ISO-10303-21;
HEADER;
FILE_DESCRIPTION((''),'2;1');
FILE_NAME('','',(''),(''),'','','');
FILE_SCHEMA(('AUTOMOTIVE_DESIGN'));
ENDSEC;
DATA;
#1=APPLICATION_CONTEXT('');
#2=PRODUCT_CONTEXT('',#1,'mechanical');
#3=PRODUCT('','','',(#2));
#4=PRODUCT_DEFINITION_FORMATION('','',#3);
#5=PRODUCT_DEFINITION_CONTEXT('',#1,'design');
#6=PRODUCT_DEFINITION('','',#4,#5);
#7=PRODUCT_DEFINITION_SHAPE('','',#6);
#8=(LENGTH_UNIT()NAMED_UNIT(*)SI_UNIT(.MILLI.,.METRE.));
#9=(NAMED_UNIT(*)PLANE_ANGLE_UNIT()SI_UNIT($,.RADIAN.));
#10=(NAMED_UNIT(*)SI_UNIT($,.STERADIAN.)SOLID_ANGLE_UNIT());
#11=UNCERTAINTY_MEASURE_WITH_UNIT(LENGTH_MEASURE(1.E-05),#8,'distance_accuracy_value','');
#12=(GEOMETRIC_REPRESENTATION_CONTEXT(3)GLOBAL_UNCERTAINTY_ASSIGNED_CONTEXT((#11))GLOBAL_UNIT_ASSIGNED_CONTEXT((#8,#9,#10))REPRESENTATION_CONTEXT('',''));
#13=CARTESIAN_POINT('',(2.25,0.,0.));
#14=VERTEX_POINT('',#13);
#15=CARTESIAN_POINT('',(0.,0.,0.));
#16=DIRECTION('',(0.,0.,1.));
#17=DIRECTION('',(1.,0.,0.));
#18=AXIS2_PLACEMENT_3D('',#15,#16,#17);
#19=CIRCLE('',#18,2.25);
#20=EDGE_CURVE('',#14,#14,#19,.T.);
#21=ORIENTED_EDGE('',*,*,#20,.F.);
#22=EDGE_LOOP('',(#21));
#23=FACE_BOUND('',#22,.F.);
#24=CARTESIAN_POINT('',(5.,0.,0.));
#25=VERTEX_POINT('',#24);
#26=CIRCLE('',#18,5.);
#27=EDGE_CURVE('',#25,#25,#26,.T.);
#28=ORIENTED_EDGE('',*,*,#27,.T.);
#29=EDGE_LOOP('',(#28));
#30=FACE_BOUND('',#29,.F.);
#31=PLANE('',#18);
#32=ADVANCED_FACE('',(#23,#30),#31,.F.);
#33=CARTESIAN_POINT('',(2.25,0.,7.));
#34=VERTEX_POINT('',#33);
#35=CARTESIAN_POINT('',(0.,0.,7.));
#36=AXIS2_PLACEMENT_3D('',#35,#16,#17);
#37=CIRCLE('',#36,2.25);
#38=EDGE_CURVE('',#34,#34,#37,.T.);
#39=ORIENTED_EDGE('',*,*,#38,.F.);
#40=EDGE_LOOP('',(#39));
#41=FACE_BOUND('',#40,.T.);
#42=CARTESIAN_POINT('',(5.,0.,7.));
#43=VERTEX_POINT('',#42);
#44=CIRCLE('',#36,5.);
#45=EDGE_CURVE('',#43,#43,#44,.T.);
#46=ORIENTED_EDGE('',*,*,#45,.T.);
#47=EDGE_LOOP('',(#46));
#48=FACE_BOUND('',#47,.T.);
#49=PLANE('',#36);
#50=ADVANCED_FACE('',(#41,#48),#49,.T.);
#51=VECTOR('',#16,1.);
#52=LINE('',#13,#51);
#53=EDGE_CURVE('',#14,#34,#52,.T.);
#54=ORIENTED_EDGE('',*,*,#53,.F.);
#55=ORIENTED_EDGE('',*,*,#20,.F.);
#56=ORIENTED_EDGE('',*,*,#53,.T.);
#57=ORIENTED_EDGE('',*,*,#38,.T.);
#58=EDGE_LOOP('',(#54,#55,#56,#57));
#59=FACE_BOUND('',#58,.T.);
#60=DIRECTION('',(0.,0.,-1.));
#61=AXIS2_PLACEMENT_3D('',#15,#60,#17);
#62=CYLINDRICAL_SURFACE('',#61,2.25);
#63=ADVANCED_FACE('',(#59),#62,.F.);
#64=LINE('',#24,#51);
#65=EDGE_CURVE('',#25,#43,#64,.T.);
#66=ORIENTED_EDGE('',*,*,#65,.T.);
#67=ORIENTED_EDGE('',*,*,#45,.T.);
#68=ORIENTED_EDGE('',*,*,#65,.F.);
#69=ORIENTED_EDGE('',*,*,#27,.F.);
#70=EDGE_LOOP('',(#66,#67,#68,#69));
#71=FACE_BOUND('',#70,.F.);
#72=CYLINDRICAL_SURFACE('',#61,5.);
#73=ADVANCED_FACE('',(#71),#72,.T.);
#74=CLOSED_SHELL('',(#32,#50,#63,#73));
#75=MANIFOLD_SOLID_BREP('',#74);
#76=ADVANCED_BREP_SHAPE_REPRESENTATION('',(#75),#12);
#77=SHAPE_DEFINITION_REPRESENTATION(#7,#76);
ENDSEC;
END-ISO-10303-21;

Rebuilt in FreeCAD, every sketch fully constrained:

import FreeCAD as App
import Part
import Sketcher
from FreeCAD import Vector

doc = App.newDocument("Part")
body = doc.addObject("PartDesign::Body", "Body")

# Sketch on XY plane
sketch1 = body.newObject("Sketcher::SketchObject", "Sketch")
sketch1.AttachmentSupport = (doc.getObject("XY_Plane"), [""])
sketch1.MapMode = "FlatFace"
sketch1.addGeometry([
    Part.Circle(Vector(0, 0, 0), Vector(0, 0, 1), 5),
    Part.Circle(Vector(0, 0, 0), Vector(0, 0, 1), 2.2),
], False)
sketch1.addConstraint([
    Sketcher.Constraint("Coincident", 0, 3, -1, 1),
    Sketcher.Constraint("Coincident", 1, 3, -1, 1),
    Sketcher.Constraint("Diameter", 0, 10.0),
    Sketcher.Constraint("Diameter", 1, 4.5),
])
pad1 = body.newObject("PartDesign::Pad", "Pad")
pad1.Profile = sketch1
pad1.Length = 7

doc.recompute()
